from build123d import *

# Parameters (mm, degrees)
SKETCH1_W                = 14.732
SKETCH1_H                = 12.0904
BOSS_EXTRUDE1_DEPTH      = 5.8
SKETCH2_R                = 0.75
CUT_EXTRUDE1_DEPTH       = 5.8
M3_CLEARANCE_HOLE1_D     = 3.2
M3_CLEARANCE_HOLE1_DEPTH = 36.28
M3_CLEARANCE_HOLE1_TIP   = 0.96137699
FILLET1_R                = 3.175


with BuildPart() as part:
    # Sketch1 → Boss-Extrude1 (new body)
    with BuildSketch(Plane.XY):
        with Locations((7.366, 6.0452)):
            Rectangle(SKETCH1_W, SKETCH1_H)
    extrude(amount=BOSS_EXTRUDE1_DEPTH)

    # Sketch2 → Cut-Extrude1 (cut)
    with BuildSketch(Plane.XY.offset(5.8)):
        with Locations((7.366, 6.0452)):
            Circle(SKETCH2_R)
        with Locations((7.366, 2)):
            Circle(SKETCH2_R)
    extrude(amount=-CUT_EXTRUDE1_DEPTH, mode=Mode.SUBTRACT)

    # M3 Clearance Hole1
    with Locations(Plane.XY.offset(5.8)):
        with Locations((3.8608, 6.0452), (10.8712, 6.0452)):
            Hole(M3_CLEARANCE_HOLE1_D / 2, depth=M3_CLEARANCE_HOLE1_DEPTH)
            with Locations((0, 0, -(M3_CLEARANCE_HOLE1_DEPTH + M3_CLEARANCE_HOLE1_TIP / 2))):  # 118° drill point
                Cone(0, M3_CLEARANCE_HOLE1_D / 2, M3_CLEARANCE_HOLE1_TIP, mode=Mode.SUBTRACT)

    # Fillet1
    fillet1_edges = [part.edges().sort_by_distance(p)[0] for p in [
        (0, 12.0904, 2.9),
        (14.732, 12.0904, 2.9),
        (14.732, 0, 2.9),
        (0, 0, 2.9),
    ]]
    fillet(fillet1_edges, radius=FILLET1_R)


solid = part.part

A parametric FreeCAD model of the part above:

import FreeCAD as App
import Part
import Sketcher


def edges_at(feature, points):
    """Names of the edges that pass closest to the given points."""
    edges = feature.Shape.Edges
    near = lambda p: min(range(len(edges)), key=lambda i: edges[i].distToShape(Part.Vertex(*p))[0])
    return sorted({f"Edge{near(p) + 1}" for p in points})

doc = App.newDocument("Part")
body = doc.addObject("PartDesign::Body", "Body")

# Sketch on XY plane
sketch1 = body.newObject("Sketcher::SketchObject", "Sketch")
sketch1.AttachmentSupport = (doc.getObject("XY_Plane"), [""])
sketch1.MapMode = "FlatFace"
sketch1.addGeometry([
    Part.LineSegment(App.Vector(0, 12.0904, 0), App.Vector(0, 0, 0)),
    Part.LineSegment(App.Vector(0, 0, 0), App.Vector(14.732, 0, 0)),
    Part.LineSegment(App.Vector(14.732, 0, 0), App.Vector(14.732, 12.0904, 0)),
    Part.LineSegment(App.Vector(14.732, 12.0904, 0), App.Vector(0, 12.0904, 0)),
], False)
sketch1.addConstraint([
    Sketcher.Constraint("Coincident", 0, 2, 1, 1),
    Sketcher.Constraint("Coincident", 1, 2, 2, 1),
    Sketcher.Constraint("Coincident", 2, 2, 3, 1),
    Sketcher.Constraint("Coincident", 3, 2, 0, 1),
    Sketcher.Constraint("Vertical", 0),
    Sketcher.Constraint("Horizontal", 1),
    Sketcher.Constraint("Vertical", 2),
    Sketcher.Constraint("Horizontal", 3),
    Sketcher.Constraint("Coincident", 0, 2, -1, 1),
    Sketcher.Constraint("DistanceX", 1, 1, 1, 2, 14.732),
    Sketcher.Constraint("DistanceY", 0, 2, 0, 1, 12.0904),
])
pad1 = body.newObject("PartDesign::Pad", "Pad")
pad1.Profile = sketch1
pad1.Length = 5.8

# Sketch on XY plane
sketch2 = body.newObject("Sketcher::SketchObject", "Sketch001")
sketch2.AttachmentSupport = (doc.getObject("XY_Plane"), [""])
sketch2.MapMode = "FlatFace"
sketch2.AttachmentOffset = App.Placement(App.Vector(0, 0, 5.8), App.Rotation())
sketch2.addGeometry([
    Part.Circle(App.Vector(7.366, 6.0452, 0), App.Vector(0, 0, 1), 0.75),
    Part.Circle(App.Vector(7.366, 2, 0), App.Vector(0, 0, 1), 0.75),
], False)
sketch2.addConstraint([
    Sketcher.Constraint("Equal", 0, 1),
    Sketcher.Constraint("Vertical", 0, 3, 1, 3),
    Sketcher.Constraint("Diameter", 0, 1.5),
    Sketcher.Constraint("DistanceY", -1, 1, 1, 3, 2.0),
    Sketcher.Constraint("DistanceX", -1, 1, 0, 3, 7.366),
    Sketcher.Constraint("DistanceY", -1, 1, 0, 3, 6.0452),
])
pocket1 = body.newObject("PartDesign::Pocket", "Pocket")
pocket1.Profile = sketch2
pocket1.Length = 5.8

# Sketch on XY plane
sketch3 = body.newObject("Sketcher::SketchObject", "Sketch002")
sketch3.AttachmentSupport = (doc.getObject("XY_Plane"), [""])
sketch3.MapMode = "FlatFace"
sketch3.AttachmentOffset = App.Placement(App.Vector(0, 0, 5.8), App.Rotation())
sketch3.addGeometry([
    Part.Circle(App.Vector(3.8608, 6.0452, 0), App.Vector(0, 0, 1), 1.6),
    Part.Circle(App.Vector(10.8712, 6.0452, 0), App.Vector(0, 0, 1), 1.6),
], False)
sketch3.addConstraint([
    Sketcher.Constraint("Equal", 0, 1),
    Sketcher.Constraint("Horizontal", 0, 3, 1, 3),
    Sketcher.Constraint("Diameter", 0, 3.2),
    Sketcher.Constraint("DistanceX", -1, 1, 0, 3, 3.8608),
    Sketcher.Constraint("DistanceY", -1, 1, 0, 3, 6.0452),
    Sketcher.Constraint("DistanceX", -1, 1, 1, 3, 10.8712),
])
doc.recompute()
hole = body.newObject("PartDesign::Hole", "Hole")
hole.Profile = sketch3
hole.ThreadType = "None"
hole.Diameter = 3.2
hole.DepthType = "Dimension"
hole.Depth = 36.28
hole.DrillPoint = "Angled"
hole.DrillPointAngle = 118
doc.recompute()

fillet = body.newObject("PartDesign::Fillet", "Fillet")
fillet.Base = (hole, edges_at(hole, [
    (0, 12.09, 2.9),
    (14.732, 12.09, 2.9),
    (14.732, 0, 2.9),
    (0, 0, 2.9),
]))
fillet.Radius = 3.175

doc.recompute()
